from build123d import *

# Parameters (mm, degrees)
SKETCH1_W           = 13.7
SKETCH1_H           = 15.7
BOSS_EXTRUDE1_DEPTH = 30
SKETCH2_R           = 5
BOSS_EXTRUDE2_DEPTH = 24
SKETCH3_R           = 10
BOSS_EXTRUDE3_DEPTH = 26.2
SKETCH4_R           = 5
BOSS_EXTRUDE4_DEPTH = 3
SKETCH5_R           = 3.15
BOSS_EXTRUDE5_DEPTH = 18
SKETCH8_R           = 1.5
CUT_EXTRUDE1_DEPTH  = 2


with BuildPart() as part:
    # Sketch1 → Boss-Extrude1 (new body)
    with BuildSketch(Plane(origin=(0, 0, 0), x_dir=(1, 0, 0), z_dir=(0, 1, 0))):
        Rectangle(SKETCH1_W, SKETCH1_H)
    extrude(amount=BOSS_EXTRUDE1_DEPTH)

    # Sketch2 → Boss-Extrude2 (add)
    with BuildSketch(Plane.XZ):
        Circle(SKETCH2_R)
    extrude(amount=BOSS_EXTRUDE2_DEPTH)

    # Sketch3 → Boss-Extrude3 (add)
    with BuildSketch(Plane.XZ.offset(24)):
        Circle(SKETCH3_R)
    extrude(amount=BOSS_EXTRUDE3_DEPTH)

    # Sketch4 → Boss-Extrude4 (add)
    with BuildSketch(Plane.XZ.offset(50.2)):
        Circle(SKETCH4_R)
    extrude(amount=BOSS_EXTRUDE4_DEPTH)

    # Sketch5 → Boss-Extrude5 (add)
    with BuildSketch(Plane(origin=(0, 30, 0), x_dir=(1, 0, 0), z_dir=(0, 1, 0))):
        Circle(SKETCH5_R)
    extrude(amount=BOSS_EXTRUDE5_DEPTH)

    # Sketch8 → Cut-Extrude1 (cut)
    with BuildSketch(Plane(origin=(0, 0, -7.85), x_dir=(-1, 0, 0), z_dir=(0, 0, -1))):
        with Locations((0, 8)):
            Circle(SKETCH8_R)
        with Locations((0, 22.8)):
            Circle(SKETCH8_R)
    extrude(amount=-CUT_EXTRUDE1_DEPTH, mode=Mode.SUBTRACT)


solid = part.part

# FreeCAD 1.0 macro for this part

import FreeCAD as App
import Part
import Sketcher

V = App.Vector
Q = App.Units.Quantity

doc = App.newDocument("Part")
params = doc.addObject("Spreadsheet::Sheet", "Params")
for row, (alias, value) in enumerate([
    ("sketch1_width", "13.7 mm"),
    ("sketch1_height", "15.7 mm"),
    ("pad1_length", "30 mm"),
    ("sketch2_diameter", "10 mm"),
    ("pad2_length", "24 mm"),
    ("sketch3_diameter", "20 mm"),
    ("pad3_length", "26.2 mm"),
    ("sketch4_diameter", "10 mm"),
    ("pad4_length", "3 mm"),
    ("sketch5_diameter", "6.3 mm"),
    ("pad5_length", "18 mm"),
    ("sketch6_diameter", "3 mm"),
    ("pocket1_length", "2 mm"),
], start=1):
    params.set(f"A{row}", alias)
    params.set(f"B{row}", "=" + value)
    params.setAlias(f"B{row}", alias)

body = doc.addObject("PartDesign::Body", "Body")

# Sketch on XZ plane
sketch1 = body.newObject("Sketcher::SketchObject", "Sketch")
sketch1.AttachmentSupport = (doc.getObject("XZ_Plane"), [""])
sketch1.MapMode = "FlatFace"
sketch1.addGeometry([
    Part.LineSegment(V(-7, -8, 0), V(-7, 8, 0)),
    Part.LineSegment(V(-7, 8, 0), V(7, 8, 0)),
    Part.LineSegment(V(7, 8, 0), V(7, -8, 0)),
    Part.LineSegment(V(7, -8, 0), V(-7, -8, 0)),
], False)
sketch1.addConstraint([
    Sketcher.Constraint("Coincident", 0, 2, 1, 1),
    Sketcher.Constraint("Coincident", 1, 2, 2, 1),
    Sketcher.Constraint("Coincident", 2, 2, 3, 1),
    Sketcher.Constraint("Coincident", 3, 2, 0, 1),
    Sketcher.Constraint("Vertical", 0),
    Sketcher.Constraint("Horizontal", 1),
    Sketcher.Constraint("Vertical", 2),
    Sketcher.Constraint("Horizontal", 3),
    Sketcher.Constraint("Symmetric", 0, 2, 2, 2, -1, 1),
    Sketcher.Constraint("DistanceX", 1, 1, 1, 2, Q("13.7 mm")),
    Sketcher.Constraint("DistanceY", 0, 1, 0, 2, Q("15.7 mm")),
])
sketch1.setExpression("Constraints[9]", "Params.sketch1_width")
sketch1.setExpression("Constraints[10]", "Params.sketch1_height")
pad1 = body.newObject("PartDesign::Pad", "Pad")
pad1.Profile = sketch1
pad1.setExpression("Length", "Params.pad1_length")
pad1.Reversed = True

# Sketch on XZ plane
sketch2 = body.newObject("Sketcher::SketchObject", "Sketch001")
sketch2.AttachmentSupport = (doc.getObject("XZ_Plane"), [""])
sketch2.MapMode = "FlatFace"
sketch2.addGeometry(Part.Circle(V(0, 0, 0), V(0, 0, 1), 5), False)
sketch2.addConstraint([
    Sketcher.Constraint("Coincident", 0, 3, -1, 1),
    Sketcher.Constraint("Diameter", 0, Q("10 mm")),
])
sketch2.setExpression("Constraints[1]", "Params.sketch2_diameter")
pad2 = body.newObject("PartDesign::Pad", "Pad001")
pad2.Profile = sketch2
pad2.setExpression("Length", "Params.pad2_length")

# Sketch on XZ plane
sketch3 = body.newObject("Sketcher::SketchObject", "Sketch002")
sketch3.AttachmentSupport = (doc.getObject("XZ_Plane"), [""])
sketch3.MapMode = "FlatFace"
sketch3.AttachmentOffset = App.Placement(V(0, 0, 24), App.Rotation())
sketch3.addGeometry(Part.Circle(V(0, 0, 0), V(0, 0, 1), 10), False)
sketch3.addConstraint([
    Sketcher.Constraint("Coincident", 0, 3, -1, 1),
    Sketcher.Constraint("Diameter", 0, Q("20 mm")),
])
sketch3.setExpression("Constraints[1]", "Params.sketch3_diameter")
pad3 = body.newObject("PartDesign::Pad", "Pad002")
pad3.Profile = sketch3
pad3.setExpression("Length", "Params.pad3_length")

# Sketch on XZ plane
sketch4 = body.newObject("Sketcher::SketchObject", "Sketch003")
sketch4.AttachmentSupport = (doc.getObject("XZ_Plane"), [""])
sketch4.MapMode = "FlatFace"
sketch4.AttachmentOffset = App.Placement(V(0, 0, 50.2), App.Rotation())
sketch4.addGeometry(Part.Circle(V(0, 0, 0), V(0, 0, 1), 5), False)
sketch4.addConstraint([
    Sketcher.Constraint("Coincident", 0, 3, -1, 1),
    Sketcher.Constraint("Diameter", 0, Q("10 mm")),
])
sketch4.setExpression("Constraints[1]", "Params.sketch4_diameter")
pad4 = body.newObject("PartDesign::Pad", "Pad003")
pad4.Profile = sketch4
pad4.setExpression("Length", "Params.pad4_length")

# Sketch on XZ plane
sketch5 = body.newObject("Sketcher::SketchObject", "Sketch004")
sketch5.AttachmentSupport = (doc.getObject("XZ_Plane"), [""])
sketch5.MapMode = "FlatFace"
sketch5.AttachmentOffset = App.Placement(V(0, 0, -30), App.Rotation())
sketch5.addGeometry(Part.Circle(V(0, 0, 0), V(0, 0, 1), 3.1), False)
sketch5.addConstraint([
    Sketcher.Constraint("Coincident", 0, 3, -1, 1),
    Sketcher.Constraint("Diameter", 0, Q("6.3 mm")),
])
sketch5.setExpression("Constraints[1]", "Params.sketch5_diameter")
pad5 = body.newObject("PartDesign::Pad", "Pad004")
pad5.Profile = sketch5
pad5.setExpression("Length", "Params.pad5_length")
pad5.Reversed = True

# Sketch on XY plane
sketch6 = body.newObject("Sketcher::SketchObject", "Sketch005")
sketch6.AttachmentSupport = (doc.getObject("XY_Plane"), [""])
sketch6.MapMode = "FlatFace"
sketch6.AttachmentOffset = App.Placement(V(0, 0, -7.85), App.Rotation())
sketch6.addGeometry([
    Part.Circle(V(0, 8, 0), V(0, 0, 1), 1.5),
    Part.Circle(V(0, 22.8, 0), V(0, 0, 1), 1.5),
], False)
sketch6.addConstraint([
    Sketcher.Constraint("Equal", 0, 1),
    Sketcher.Constraint("PointOnObject", 0, 3, -2),
    Sketcher.Constraint("PointOnObject", 1, 3, -2),
    Sketcher.Constraint("Diameter", 0, Q("3 mm")),
    Sketcher.Constraint("DistanceY", -1, 1, 0, 3, Q("8 mm")),
    Sketcher.Constraint("DistanceY", -1, 1, 1, 3, Q("22.8 mm")),
])
sketch6.setExpression("Constraints[3]", "Params.sketch6_diameter")
pocket1 = body.newObject("PartDesign::Pocket", "Pocket")
pocket1.Profile = sketch6
pocket1.setExpression("Length", "Params.pocket1_length")
pocket1.Reversed = True

doc.recompute()
